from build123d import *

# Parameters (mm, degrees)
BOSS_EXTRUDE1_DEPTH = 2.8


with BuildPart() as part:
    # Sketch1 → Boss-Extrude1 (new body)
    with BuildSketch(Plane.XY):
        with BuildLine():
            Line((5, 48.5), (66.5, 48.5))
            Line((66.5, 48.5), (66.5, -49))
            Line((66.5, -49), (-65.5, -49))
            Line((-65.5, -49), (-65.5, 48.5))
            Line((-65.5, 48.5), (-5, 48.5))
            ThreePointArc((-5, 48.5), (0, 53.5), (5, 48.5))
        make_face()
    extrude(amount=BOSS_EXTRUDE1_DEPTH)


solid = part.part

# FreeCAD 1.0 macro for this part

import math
import FreeCAD as App
import Part
import Sketcher

V = App.Vector

doc = App.newDocument("Part")
params = doc.addObject("Spreadsheet::Sheet", "Params")
for row, (alias, value) in enumerate([
    ("sketch1_radius", "5 mm"),
    ("sketch1_width", "132 mm"),
    ("sketch1_width2", "61.5 mm"),
    ("sketch1_height", "97.5 mm"),
    ("pad1_length", "2.8 mm"),
], start=1):
    params.set(f"A{row}", alias)
    params.set(f"B{row}", "=" + value)
    params.setAlias(f"B{row}", alias)

body = doc.addObject("PartDesign::Body", "Body")

# Sketch on XY plane
sketch1 = body.newObject("Sketcher::SketchObject", "Sketch")
sketch1.AttachmentSupport = (doc.getObject("XY_Plane"), [""])
sketch1.MapMode = "FlatFace"
sketch1.addGeometry([
    Part.LineSegment(V(66, 48, 0), V(5, 48, 0)),  # 0
    Part.ArcOfCircle(Part.Circle(V(0, 48, 0), V(0, 0, 1), 5), math.radians(0), math.radians(180)),  # 1
    Part.LineSegment(V(-5, 48, 0), V(-66, 48, 0)),  # 2
    Part.LineSegment(V(-66, 48, 0), V(-66, -49, 0)),  # 3
    Part.LineSegment(V(-66, -49, 0), V(66, -49, 0)),  # 4
    Part.LineSegment(V(66, -49, 0), V(66, 48, 0)),  # 5
], False)
sketch1.addConstraint([
    Sketcher.Constraint("Coincident", 0, 2, 1, 1),
    Sketcher.Constraint("Coincident", 1, 2, 2, 1),
    Sketcher.Constraint("Coincident", 2, 2, 3, 1),
    Sketcher.Constraint("Coincident", 3, 2, 4, 1),
    Sketcher.Constraint("Coincident", 4, 2, 5, 1),
    Sketcher.Constraint("Coincident", 5, 2, 0, 1),
    Sketcher.Constraint("Horizontal", 0),
    Sketcher.Constraint("Horizontal", 2),
    Sketcher.Constraint("Vertical", 3),
    Sketcher.Constraint("Horizontal", 4),
    Sketcher.Constraint("Vertical", 5),
    Sketcher.Constraint("Symmetric", 0, 2, 1, 2, -2),
    Sketcher.Constraint("Horizontal", 1, 3, 0, 2),
    Sketcher.Constraint("Radius", 1, 5.0),
    Sketcher.Constraint("DistanceX", 4, 1, 4, 2, 132.0),
    Sketcher.Constraint("DistanceX", 0, 2, 0, 1, 61.5),
    Sketcher.Constraint("DistanceY", 3, 2, 3, 1, 97.5),
    Sketcher.Constraint("DistanceY", 3, 2, -1, 1, 49.0),
])
sketch1.setExpression("Constraints[13]", "Params.sketch1_radius")
sketch1.setExpression("Constraints[14]", "Params.sketch1_width")
sketch1.setExpression("Constraints[15]", "Params.sketch1_width2")
sketch1.setExpression("Constraints[16]", "Params.sketch1_height")
pad1 = body.newObject("PartDesign::Pad", "Pad")
pad1.Profile = sketch1
pad1.setExpression("Length", "Params.pad1_length")

doc.recompute()
